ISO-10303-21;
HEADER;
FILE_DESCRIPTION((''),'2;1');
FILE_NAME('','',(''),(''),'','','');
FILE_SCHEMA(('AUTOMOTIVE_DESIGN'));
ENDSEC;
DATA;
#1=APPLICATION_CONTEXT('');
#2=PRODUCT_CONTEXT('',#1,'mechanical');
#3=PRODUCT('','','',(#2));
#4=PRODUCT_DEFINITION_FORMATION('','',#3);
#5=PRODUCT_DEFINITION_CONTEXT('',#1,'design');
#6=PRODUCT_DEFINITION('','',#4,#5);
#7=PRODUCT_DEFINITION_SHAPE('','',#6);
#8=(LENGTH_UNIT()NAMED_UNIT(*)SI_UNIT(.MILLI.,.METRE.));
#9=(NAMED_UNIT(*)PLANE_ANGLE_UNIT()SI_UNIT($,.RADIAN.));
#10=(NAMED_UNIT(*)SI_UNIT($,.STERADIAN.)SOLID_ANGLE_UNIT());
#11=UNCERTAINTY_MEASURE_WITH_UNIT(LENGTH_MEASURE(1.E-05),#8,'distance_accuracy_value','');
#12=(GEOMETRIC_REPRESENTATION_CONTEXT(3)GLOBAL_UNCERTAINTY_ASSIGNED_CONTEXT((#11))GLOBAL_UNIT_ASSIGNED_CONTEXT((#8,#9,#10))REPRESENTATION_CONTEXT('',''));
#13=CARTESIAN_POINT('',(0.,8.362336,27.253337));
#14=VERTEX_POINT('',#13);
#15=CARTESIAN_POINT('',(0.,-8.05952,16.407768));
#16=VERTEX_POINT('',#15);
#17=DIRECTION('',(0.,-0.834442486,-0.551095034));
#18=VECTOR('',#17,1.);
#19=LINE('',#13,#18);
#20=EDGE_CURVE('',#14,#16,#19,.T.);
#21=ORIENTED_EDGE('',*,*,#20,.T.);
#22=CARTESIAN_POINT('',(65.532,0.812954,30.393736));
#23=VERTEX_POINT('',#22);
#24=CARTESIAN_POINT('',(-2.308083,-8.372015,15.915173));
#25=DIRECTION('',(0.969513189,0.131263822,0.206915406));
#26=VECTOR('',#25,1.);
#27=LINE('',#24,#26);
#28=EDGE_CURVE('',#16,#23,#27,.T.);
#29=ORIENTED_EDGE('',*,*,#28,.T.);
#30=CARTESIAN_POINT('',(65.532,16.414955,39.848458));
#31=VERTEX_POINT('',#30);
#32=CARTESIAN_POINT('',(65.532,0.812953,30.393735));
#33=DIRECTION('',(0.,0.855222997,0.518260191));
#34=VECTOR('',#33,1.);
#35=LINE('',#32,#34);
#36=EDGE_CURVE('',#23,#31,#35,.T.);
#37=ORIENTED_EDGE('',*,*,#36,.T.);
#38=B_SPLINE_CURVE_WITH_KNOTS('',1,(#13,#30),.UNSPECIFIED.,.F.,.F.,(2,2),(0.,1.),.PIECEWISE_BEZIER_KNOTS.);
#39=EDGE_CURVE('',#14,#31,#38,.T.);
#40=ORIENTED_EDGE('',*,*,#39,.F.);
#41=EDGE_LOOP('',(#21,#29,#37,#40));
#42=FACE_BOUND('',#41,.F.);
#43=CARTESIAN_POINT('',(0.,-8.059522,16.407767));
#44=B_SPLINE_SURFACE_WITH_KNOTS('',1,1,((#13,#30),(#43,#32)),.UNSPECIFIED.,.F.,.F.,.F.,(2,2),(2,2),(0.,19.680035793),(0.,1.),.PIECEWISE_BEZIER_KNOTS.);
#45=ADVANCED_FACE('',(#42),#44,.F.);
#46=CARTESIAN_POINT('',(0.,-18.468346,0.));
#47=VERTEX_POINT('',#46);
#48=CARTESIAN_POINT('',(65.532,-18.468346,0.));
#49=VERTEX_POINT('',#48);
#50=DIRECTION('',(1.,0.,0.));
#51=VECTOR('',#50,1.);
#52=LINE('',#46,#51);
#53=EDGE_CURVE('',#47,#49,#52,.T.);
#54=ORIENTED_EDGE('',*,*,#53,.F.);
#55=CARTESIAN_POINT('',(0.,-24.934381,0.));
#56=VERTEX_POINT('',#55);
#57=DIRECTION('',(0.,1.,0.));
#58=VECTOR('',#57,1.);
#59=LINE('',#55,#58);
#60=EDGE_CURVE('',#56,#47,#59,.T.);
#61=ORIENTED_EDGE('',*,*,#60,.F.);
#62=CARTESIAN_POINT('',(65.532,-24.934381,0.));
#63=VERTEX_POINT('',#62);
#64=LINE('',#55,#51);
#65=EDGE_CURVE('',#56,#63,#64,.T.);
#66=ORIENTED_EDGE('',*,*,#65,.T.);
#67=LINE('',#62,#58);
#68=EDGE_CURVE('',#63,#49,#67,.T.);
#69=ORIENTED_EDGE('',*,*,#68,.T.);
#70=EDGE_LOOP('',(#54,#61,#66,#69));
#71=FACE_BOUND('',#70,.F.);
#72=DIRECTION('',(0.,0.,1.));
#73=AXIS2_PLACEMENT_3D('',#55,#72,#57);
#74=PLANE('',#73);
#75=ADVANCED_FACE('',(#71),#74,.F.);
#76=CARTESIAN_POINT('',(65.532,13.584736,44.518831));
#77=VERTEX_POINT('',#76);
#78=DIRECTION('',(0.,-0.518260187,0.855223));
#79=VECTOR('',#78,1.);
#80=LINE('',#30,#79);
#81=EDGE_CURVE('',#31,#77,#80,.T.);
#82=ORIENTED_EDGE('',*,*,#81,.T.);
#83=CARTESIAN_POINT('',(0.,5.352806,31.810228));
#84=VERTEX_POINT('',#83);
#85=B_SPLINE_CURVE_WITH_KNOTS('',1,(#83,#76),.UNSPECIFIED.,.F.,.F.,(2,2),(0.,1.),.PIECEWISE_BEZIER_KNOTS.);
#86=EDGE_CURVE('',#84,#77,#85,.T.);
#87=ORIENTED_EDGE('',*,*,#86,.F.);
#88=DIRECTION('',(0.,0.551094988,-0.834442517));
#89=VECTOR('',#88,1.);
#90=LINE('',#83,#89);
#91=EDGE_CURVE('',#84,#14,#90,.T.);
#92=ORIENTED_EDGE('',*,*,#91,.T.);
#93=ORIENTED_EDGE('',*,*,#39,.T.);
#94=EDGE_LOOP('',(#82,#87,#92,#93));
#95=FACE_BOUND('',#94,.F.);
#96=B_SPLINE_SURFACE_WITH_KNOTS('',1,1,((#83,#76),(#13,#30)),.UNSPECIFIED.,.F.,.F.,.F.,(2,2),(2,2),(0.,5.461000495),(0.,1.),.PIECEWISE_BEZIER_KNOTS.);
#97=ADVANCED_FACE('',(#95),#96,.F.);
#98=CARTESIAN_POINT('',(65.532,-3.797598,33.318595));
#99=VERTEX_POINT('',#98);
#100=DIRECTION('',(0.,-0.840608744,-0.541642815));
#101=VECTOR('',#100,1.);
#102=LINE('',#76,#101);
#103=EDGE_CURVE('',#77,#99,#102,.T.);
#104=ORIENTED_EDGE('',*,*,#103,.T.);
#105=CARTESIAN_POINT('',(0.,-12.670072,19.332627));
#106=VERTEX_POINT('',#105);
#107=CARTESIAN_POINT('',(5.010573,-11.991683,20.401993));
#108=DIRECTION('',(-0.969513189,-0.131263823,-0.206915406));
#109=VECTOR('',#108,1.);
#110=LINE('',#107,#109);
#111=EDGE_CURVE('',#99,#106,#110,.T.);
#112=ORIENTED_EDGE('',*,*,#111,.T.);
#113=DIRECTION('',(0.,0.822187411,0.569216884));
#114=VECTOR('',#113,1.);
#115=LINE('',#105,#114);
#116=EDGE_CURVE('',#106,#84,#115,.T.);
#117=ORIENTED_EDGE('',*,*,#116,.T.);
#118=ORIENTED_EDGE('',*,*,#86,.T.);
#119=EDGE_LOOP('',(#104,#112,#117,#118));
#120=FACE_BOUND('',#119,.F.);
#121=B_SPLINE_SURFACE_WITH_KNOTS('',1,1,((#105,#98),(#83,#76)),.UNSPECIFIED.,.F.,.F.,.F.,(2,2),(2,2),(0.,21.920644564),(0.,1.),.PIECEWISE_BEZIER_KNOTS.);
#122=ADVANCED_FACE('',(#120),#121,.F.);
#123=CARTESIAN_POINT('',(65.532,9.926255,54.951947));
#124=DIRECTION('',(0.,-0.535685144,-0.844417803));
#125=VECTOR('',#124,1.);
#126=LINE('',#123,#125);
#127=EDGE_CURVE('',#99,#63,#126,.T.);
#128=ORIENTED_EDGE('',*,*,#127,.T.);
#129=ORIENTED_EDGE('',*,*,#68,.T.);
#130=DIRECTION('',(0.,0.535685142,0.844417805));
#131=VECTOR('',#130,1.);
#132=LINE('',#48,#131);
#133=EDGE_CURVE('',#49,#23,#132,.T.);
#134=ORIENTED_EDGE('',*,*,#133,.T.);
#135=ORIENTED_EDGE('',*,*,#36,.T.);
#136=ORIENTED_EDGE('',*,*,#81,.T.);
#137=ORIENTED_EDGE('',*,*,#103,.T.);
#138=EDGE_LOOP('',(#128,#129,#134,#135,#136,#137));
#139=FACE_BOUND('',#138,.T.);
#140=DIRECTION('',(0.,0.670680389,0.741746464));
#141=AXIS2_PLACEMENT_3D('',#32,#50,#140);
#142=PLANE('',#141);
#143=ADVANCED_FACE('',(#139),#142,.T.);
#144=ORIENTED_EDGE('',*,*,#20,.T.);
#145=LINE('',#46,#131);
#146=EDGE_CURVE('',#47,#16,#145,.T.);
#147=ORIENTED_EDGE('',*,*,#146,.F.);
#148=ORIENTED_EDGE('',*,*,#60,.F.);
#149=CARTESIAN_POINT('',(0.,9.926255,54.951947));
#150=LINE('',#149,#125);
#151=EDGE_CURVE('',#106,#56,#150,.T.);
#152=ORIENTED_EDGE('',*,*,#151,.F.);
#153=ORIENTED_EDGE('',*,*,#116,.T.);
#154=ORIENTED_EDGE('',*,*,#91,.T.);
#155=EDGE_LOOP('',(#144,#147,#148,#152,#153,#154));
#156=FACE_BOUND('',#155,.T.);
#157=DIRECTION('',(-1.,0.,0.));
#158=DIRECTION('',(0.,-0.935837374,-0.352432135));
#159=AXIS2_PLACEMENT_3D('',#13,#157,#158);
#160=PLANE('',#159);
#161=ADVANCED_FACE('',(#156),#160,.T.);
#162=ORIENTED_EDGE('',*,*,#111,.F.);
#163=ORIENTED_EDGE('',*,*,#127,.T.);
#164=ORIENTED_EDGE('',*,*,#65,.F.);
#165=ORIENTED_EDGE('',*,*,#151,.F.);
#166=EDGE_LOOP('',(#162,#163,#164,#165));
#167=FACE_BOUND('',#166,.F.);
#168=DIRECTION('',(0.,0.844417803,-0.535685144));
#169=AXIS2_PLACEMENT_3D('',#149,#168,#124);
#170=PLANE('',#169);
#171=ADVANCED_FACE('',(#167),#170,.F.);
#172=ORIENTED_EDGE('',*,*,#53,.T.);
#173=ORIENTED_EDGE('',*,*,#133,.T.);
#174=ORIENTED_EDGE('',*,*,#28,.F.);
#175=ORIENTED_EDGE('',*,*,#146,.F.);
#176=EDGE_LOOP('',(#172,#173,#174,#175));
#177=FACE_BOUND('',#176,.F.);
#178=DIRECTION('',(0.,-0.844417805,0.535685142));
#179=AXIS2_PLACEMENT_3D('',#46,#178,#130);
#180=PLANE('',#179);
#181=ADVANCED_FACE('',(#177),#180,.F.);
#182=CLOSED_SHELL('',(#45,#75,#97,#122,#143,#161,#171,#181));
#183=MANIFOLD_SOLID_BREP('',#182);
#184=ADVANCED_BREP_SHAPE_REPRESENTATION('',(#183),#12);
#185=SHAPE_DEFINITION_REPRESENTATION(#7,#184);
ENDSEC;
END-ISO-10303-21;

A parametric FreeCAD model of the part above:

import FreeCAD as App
import Part
import Sketcher
from FreeCAD import Vector
Q = App.Units.Quantity

doc = App.newDocument("Part")
body = doc.addObject("PartDesign::Body", "Body")

sketch1 = body.newObject("Sketcher::SketchObject", "Sketch")
sketch1.AttachmentSupport = (doc.getObject("YZ_Plane"), [""])
sketch1.MapMode = "FlatFace"
sketch1.addGeometry(Part.LineSegment(Vector(10, 55, 0), Vector(-25, 0, 0)), False)
sketch1.addGeometry(Part.LineSegment(Vector(-25, 0, 0), Vector(-18, 0, 0)), False)
sketch1.addGeometry(Part.LineSegment(Vector(-18, 0, 0), Vector(15, 52, 0)), False)
sketch1.addGeometry(Part.LineSegment(Vector(15, 52, 0), Vector(10, 55, 0)), False)
sketch1.addConstraint(Sketcher.Constraint("Coincident", 0, 2, 1, 1))
sketch1.addConstraint(Sketcher.Constraint("Coincident", 1, 2, 2, 1))
sketch1.addConstraint(Sketcher.Constraint("Coincident", 2, 2, 3, 1))
sketch1.addConstraint(Sketcher.Constraint("Coincident", 3, 2, 0, 1))
sketch1.addConstraint(Sketcher.Constraint("Horizontal", 1))
sketch1.addConstraint(Sketcher.Constraint("PointOnObject", 0, 2, -1))
sketch1.addConstraint(Sketcher.Constraint("Parallel", 0, 2))
sketch1.addConstraint(Sketcher.Constraint("Perpendicular", 2, 3))
sketch1.addConstraint(Sketcher.Constraint("DistanceX", 1, 2, 3, 2, 28.394601))
sketch1.addConstraint(Sketcher.Constraint("Distance", 2, 61.612969))
sketch1.addConstraint(Sketcher.Constraint("DistanceX", 1, 1, 1, 2, 6.466035))
sketch1.addConstraint(Sketcher.Constraint("DistanceX", 0, 2, -1, 1, 24.934381))
pad1 = body.newObject("PartDesign::Pad", "Pad")
pad1.Profile = sketch1
pad1.Length = Q("2.58 in")

sketch2 = body.newObject("Sketcher::SketchObject", "Sketch001")
sketch2.Placement = App.Placement(Vector(0, -17.779247, 11.27887), App.Rotation(Vector(1, 0, 0), Vector(0, 0.535684952, 0.844417925), Vector(0, -0.844417925, 0.535684952), "ZXY"))
sketch2.addGeometry(Part.LineSegment(Vector(-18, 38, 0), Vector(0, 10, 0)), False)
sketch2.addGeometry(Part.LineSegment(Vector(0, 10, 0), Vector(66, 26, 0)), False)
sketch2.addGeometry(Part.LineSegment(Vector(66, 26, 0), Vector(82, 61, 0)), False)
sketch2.addGeometry(Part.LineSegment(Vector(82, 61, 0), Vector(0, 74, 0)), False)
sketch2.addGeometry(Part.LineSegment(Vector(0, 74, 0), Vector(-18, 38, 0)), False)
sketch2.addConstraint(Sketcher.Constraint("Coincident", 0, 2, 1, 1))
sketch2.addConstraint(Sketcher.Constraint("Coincident", 1, 2, 2, 1))
sketch2.addConstraint(Sketcher.Constraint("Coincident", 2, 2, 3, 1))
sketch2.addConstraint(Sketcher.Constraint("Coincident", 3, 2, 4, 1))
sketch2.addConstraint(Sketcher.Constraint("Coincident", 4, 2, 0, 1))
sketch2.addConstraint(Sketcher.Constraint("PointOnObject", 0, 2, -2))
sketch2.addConstraint(Sketcher.Constraint("PointOnObject", 3, 2, -2))
sketch2.addConstraint(Sketcher.Constraint("DistanceX", -1, 1, 1, 2, Q("2.58 in")))
sketch2.addConstraint(Sketcher.Constraint("Distance", 0, 33.791472))
sketch2.addConstraint(Sketcher.Constraint("Distance", 3, 83.441861))
sketch2.addConstraint(Sketcher.Constraint("Distance", 4, 40.254269))
sketch2.addConstraint(Sketcher.Constraint("DistanceY", -1, 1, 2, 2, 60.764659))
sketch2.addConstraint(Sketcher.Constraint("DistanceY", -1, 1, 3, 2, 74.19014))
sketch2.addConstraint(Sketcher.Constraint("DistanceX", 4, 2, -1, 1, 17.95695))
sketch2.addConstraint(Sketcher.Constraint("DistanceY", 1, 2, 2, 2, 34.664161))
pocket1 = body.newObject("PartDesign::Pocket", "Pocket")
pocket1.Profile = sketch2
pocket1.Length = Q("1 in")

sketch3 = body.newObject("Sketcher::SketchObject", "Sketch002")
sketch3.AttachmentSupport = (doc.getObject("YZ_Plane"), [""])
sketch3.MapMode = "FlatFace"
sketch3.addGeometry(Part.LineSegment(Vector(8, 27, 0), Vector(-8, 16, 0)), False)
sketch3.addGeometry(Part.LineSegment(Vector(-8, 16, 0), Vector(-13, 19, 0)), False)
sketch3.addGeometry(Part.LineSegment(Vector(-13, 19, 0), Vector(5, 32, 0)), False)
sketch3.addGeometry(Part.LineSegment(Vector(5, 32, 0), Vector(8, 27, 0)), False)
sketch3.addConstraint(Sketcher.Constraint("Coincident", 0, 2, 1, 1))
sketch3.addConstraint(Sketcher.Constraint("Coincident", 1, 2, 2, 1))
sketch3.addConstraint(Sketcher.Constraint("Coincident", 2, 2, 3, 1))
sketch3.addConstraint(Sketcher.Constraint("Coincident", 3, 2, 0, 1))
sketch3.addConstraint(Sketcher.Constraint("Perpendicular", 0, 3))
sketch3.addConstraint(Sketcher.Constraint("Distance", 3, Q("0.215 in")))
sketch3.addConstraint(Sketcher.Constraint("DistanceY", 1, 2, 2, 2, 12.477601))
sketch3.addConstraint(Sketcher.Constraint("DistanceX", 1, 2, -1, 1, 12.670072))
sketch3.addConstraint(Sketcher.Constraint("DistanceX", 1, 2, 0, 2, 4.61055))
sketch3.addConstraint(Sketcher.Constraint("DistanceY", 0, 2, 1, 2, 2.92486))
sketch3.addConstraint(Sketcher.Constraint("DistanceX", 2, 2, 3, 2, 3.00953))
sketch3.addConstraint(Sketcher.Constraint("DistanceY", -1, 1, 0, 2, 16.407767))

sketch4 = body.newObject("Sketcher::SketchObject", "Sketch003")
sketch4.AttachmentSupport = (doc.getObject("YZ_Plane"), [""])
sketch4.MapMode = "FlatFace"
sketch4.AttachmentOffset = App.Placement(Vector(0, 0, 2.58 * 25.4), App.Rotation())
sketch4.addGeometry(Part.LineSegment(Vector(-4, 33, 0), Vector(1, 30, 0)), False)
sketch4.addGeometry(Part.LineSegment(Vector(1, 30, 0), Vector(16, 40, 0)), False)
sketch4.addGeometry(Part.LineSegment(Vector(16, 40, 0), Vector(14, 45, 0)), False)
sketch4.addGeometry(Part.LineSegment(Vector(14, 45, 0), Vector(-4, 33, 0)), False)
sketch4.addConstraint(Sketcher.Constraint("Coincident", 0, 2, 1, 1))
sketch4.addConstraint(Sketcher.Constraint("Coincident", 1, 2, 2, 1))
sketch4.addConstraint(Sketcher.Constraint("Coincident", 2, 2, 3, 1))
sketch4.addConstraint(Sketcher.Constraint("Coincident", 3, 2, 0, 1))
sketch4.addConstraint(Sketcher.Constraint("Perpendicular", 1, 2))
sketch4.addConstraint(Sketcher.Constraint("Distance", 2, Q("0.215 in")))
sketch4.addConstraint(Sketcher.Constraint("DistanceX", 0, 2, 1, 2, 15.602002))
sketch4.addConstraint(Sketcher.Constraint("Distance", 3, 20.678269))
sketch4.addConstraint(Sketcher.Constraint("DistanceY", -1, 1, 2, 2, 44.518831))
sketch4.addConstraint(Sketcher.Constraint("DistanceX", 2, 2, 1, 2, 2.830219))
sketch4.addConstraint(Sketcher.Constraint("DistanceX", 3, 2, 0, 2, 4.610551))
sketch4.addConstraint(Sketcher.Constraint("DistanceX", -1, 1, 0, 2, 0.812953))

additiveloft = body.newObject("PartDesign::AdditiveLoft", "AdditiveLoft")
additiveloft.Profile = sketch3
additiveloft.Sections = [sketch4]

doc.recompute()
